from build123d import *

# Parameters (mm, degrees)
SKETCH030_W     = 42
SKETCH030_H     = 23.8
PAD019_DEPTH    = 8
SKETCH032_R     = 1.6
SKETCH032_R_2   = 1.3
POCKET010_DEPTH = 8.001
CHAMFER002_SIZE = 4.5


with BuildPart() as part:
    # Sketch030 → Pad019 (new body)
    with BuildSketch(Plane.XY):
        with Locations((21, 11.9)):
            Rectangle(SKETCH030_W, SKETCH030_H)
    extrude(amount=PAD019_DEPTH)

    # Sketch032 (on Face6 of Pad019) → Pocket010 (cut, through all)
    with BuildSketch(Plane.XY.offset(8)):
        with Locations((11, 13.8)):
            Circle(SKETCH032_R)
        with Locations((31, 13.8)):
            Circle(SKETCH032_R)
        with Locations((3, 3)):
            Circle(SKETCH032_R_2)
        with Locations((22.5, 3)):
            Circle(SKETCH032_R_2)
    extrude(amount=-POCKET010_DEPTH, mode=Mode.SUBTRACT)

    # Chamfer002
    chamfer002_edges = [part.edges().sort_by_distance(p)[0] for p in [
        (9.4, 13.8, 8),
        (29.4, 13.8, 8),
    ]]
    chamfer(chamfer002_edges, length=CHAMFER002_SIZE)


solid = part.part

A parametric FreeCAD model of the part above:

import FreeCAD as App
import Part
import Sketcher

V = App.Vector


def edges_at(feature, points):
    """Names of the edges that pass closest to the given points."""
    edges = feature.Shape.Edges
    near = lambda p: min(range(len(edges)), key=lambda i: edges[i].distToShape(Part.Vertex(*p))[0])
    return sorted({f"Edge{near(p) + 1}" for p in points})

doc = App.newDocument("Part")
body = doc.addObject("PartDesign::Body", "Body")

# Sketch on XY plane
sketch1 = body.newObject("Sketcher::SketchObject", "Sketch")
sketch1.AttachmentSupport = (doc.getObject("XY_Plane"), [""])
sketch1.MapMode = "FlatFace"
sketch1.addGeometry(Part.LineSegment(V(0, 23.8, 0), V(0, 0, 0)), False)
sketch1.addGeometry(Part.LineSegment(V(0, 0, 0), V(42, 0, 0)), False)
sketch1.addGeometry(Part.LineSegment(V(42, 0, 0), V(42, 23.8, 0)), False)
sketch1.addGeometry(Part.LineSegment(V(42, 23.8, 0), V(0, 23.8, 0)), False)
sketch1.addConstraint(Sketcher.Constraint("Coincident", 0, 2, 1, 1))
sketch1.addConstraint(Sketcher.Constraint("Coincident", 1, 2, 2, 1))
sketch1.addConstraint(Sketcher.Constraint("Coincident", 2, 2, 3, 1))
sketch1.addConstraint(Sketcher.Constraint("Coincident", 3, 2, 0, 1))
sketch1.addConstraint(Sketcher.Constraint("Vertical", 0))
sketch1.addConstraint(Sketcher.Constraint("Horizontal", 1))
sketch1.addConstraint(Sketcher.Constraint("Vertical", 2))
sketch1.addConstraint(Sketcher.Constraint("Horizontal", 3))
sketch1.addConstraint(Sketcher.Constraint("Coincident", 0, 2, -1, 1))
sketch1.addConstraint(Sketcher.Constraint("DistanceX", 1, 1, 1, 2, 42.0))
sketch1.addConstraint(Sketcher.Constraint("DistanceY", 0, 2, 0, 1, 23.8))
pad1 = body.newObject("PartDesign::Pad", "Pad")
pad1.Profile = sketch1
pad1.Length = 8

# Sketch on XY plane
sketch2 = body.newObject("Sketcher::SketchObject", "Sketch001")
sketch2.AttachmentSupport = (doc.getObject("XY_Plane"), [""])
sketch2.MapMode = "FlatFace"
sketch2.AttachmentOffset = App.Placement(V(0, 0, 8), App.Rotation())
sketch2.addGeometry(Part.Circle(V(11, 13.8, 0), V(0, 0, 1), 1.6), False)
sketch2.addGeometry(Part.Circle(V(31, 13.8, 0), V(0, 0, 1), 1.6), False)
sketch2.addGeometry(Part.Circle(V(3, 3, 0), V(0, 0, 1), 1.3), False)
sketch2.addGeometry(Part.Circle(V(22.5, 3, 0), V(0, 0, 1), 1.3), False)
sketch2.addConstraint(Sketcher.Constraint("Equal", 0, 1))
sketch2.addConstraint(Sketcher.Constraint("Equal", 2, 3))
sketch2.addConstraint(Sketcher.Constraint("Horizontal", 0, 3, 1, 3))
sketch2.addConstraint(Sketcher.Constraint("Horizontal", 2, 3, 3, 3))
sketch2.addConstraint(Sketcher.Constraint("Diameter", 0, 3.2))
sketch2.addConstraint(Sketcher.Constraint("Diameter", 2, 2.6))
sketch2.addConstraint(Sketcher.Constraint("DistanceX", -1, 1, 0, 3, 11.0))
sketch2.addConstraint(Sketcher.Constraint("DistanceX", -1, 1, 1, 3, 31.0))
sketch2.addConstraint(Sketcher.Constraint("DistanceX", -1, 1, 2, 3, 3.0))
sketch2.addConstraint(Sketcher.Constraint("DistanceY", -1, 1, 2, 3, 3.0))
sketch2.addConstraint(Sketcher.Constraint("DistanceY", -1, 1, 0, 3, 13.8))
sketch2.addConstraint(Sketcher.Constraint("DistanceX", -1, 1, 3, 3, 22.5))
pocket1 = body.newObject("PartDesign::Pocket", "Pocket")
pocket1.Profile = sketch2
pocket1.Type = "ThroughAll"
doc.recompute()

chamfer = body.newObject("PartDesign::Chamfer", "Chamfer")
chamfer.Base = (pocket1, edges_at(pocket1, [(9.4, 13.8, 8), (29.4, 13.8, 8)]))
chamfer.Size = 4.5

doc.recompute()
